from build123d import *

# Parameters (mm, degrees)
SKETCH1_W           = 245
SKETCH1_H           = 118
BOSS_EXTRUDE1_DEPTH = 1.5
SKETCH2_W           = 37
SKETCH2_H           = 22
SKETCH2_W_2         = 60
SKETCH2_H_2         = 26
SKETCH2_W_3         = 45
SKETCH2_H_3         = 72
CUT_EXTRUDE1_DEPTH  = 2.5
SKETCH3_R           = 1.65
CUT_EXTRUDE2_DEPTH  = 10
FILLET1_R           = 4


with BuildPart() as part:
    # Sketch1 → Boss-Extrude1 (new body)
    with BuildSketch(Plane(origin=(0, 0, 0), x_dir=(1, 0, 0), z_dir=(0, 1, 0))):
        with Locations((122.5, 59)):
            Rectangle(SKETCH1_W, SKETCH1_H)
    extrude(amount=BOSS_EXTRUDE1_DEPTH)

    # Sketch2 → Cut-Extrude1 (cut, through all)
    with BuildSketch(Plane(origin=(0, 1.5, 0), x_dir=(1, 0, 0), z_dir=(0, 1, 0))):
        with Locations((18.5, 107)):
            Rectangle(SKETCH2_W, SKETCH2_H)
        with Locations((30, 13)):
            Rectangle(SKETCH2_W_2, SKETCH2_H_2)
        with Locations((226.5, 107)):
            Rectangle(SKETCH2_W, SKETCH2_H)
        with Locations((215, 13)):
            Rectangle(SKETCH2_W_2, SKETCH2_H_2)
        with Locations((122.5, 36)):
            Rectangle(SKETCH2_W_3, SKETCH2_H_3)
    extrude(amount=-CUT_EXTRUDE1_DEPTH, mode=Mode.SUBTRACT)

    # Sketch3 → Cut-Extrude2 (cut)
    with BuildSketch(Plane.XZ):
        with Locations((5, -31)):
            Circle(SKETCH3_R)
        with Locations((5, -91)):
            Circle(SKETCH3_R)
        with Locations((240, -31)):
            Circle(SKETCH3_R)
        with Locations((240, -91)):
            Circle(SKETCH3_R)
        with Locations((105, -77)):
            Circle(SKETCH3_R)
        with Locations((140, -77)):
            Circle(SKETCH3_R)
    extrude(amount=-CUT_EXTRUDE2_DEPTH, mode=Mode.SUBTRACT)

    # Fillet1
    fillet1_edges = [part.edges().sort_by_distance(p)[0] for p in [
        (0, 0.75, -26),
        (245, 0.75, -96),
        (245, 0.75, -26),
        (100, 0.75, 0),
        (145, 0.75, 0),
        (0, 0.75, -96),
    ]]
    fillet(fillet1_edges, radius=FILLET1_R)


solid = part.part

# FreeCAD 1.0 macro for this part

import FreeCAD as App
import Part
import Sketcher


def edges_at(feature, points):
    """Names of the edges that pass closest to the given points."""
    edges = feature.Shape.Edges
    near = lambda p: min(range(len(edges)), key=lambda i: edges[i].distToShape(Part.Vertex(*p))[0])
    return sorted({f"Edge{near(p) + 1}" for p in points})

doc = App.newDocument("Part")
params = doc.addObject("Spreadsheet::Sheet", "Params")
for row, (alias, value) in enumerate([
    ("sketch1_width", "245 mm"),
    ("sketch1_height", "118 mm"),
    ("pad1_length", "1.5 mm"),
    ("sketch2_width", "37 mm"),
    ("sketch2_width2", "60 mm"),
    ("sketch2_width3", "45 mm"),
    ("sketch2_height", "22 mm"),
    ("sketch2_height2", "26 mm"),
    ("sketch3_diameter", "3.3 mm"),
    ("pocket2_length", "10 mm"),
    ("fillet_radius", "4 mm"),
], start=1):
    params.set(f"A{row}", alias)
    params.set(f"B{row}", "=" + value)
    params.setAlias(f"B{row}", alias)

body = doc.addObject("PartDesign::Body", "Body")

# Sketch on XZ plane
sketch1 = body.newObject("Sketcher::SketchObject", "Sketch")
sketch1.AttachmentSupport = (doc.getObject("XZ_Plane"), [""])
sketch1.MapMode = "FlatFace"
sketch1.addGeometry([
    Part.LineSegment(App.Vector(0, -118, 0), App.Vector(0, 0, 0)),
    Part.LineSegment(App.Vector(0, 0, 0), App.Vector(245, 0, 0)),
    Part.LineSegment(App.Vector(245, 0, 0), App.Vector(245, -118, 0)),
    Part.LineSegment(App.Vector(245, -118, 0), App.Vector(0, -118, 0)),
], False)
sketch1.addConstraint([
    Sketcher.Constraint("Coincident", 0, 2, 1, 1),
    Sketcher.Constraint("Coincident", 1, 2, 2, 1),
    Sketcher.Constraint("Coincident", 2, 2, 3, 1),
    Sketcher.Constraint("Coincident", 3, 2, 0, 1),
    Sketcher.Constraint("Vertical", 0),
    Sketcher.Constraint("Horizontal", 1),
    Sketcher.Constraint("Vertical", 2),
    Sketcher.Constraint("Horizontal", 3),
    Sketcher.Constraint("Coincident", 0, 2, -1, 1),
    Sketcher.Constraint("DistanceX", 1, 1, 1, 2, 245.0),
    Sketcher.Constraint("DistanceY", 0, 1, 0, 2, 118.0),
])
sketch1.setExpression("Constraints[9]", "Params.sketch1_width")
sketch1.setExpression("Constraints[10]", "Params.sketch1_height")
pad1 = body.newObject("PartDesign::Pad", "Pad")
pad1.Profile = sketch1
pad1.setExpression("Length", "Params.pad1_length")
pad1.Reversed = True

# Sketch on XZ plane
sketch2 = body.newObject("Sketcher::SketchObject", "Sketch001")
sketch2.AttachmentSupport = (doc.getObject("XZ_Plane"), [""])
sketch2.MapMode = "FlatFace"
sketch2.AttachmentOffset = App.Placement(App.Vector(0, 0, -1.5), App.Rotation())
sketch2.addGeometry([
    Part.LineSegment(App.Vector(0, -118, 0), App.Vector(0, -96, 0)),  # 0
    Part.LineSegment(App.Vector(0, -96, 0), App.Vector(37, -96, 0)),  # 1
    Part.LineSegment(App.Vector(37, -96, 0), App.Vector(37, -118, 0)),  # 2
    Part.LineSegment(App.Vector(37, -118, 0), App.Vector(0, -118, 0)),  # 3
    Part.LineSegment(App.Vector(0, -26, 0), App.Vector(0, 0, 0)),  # 4
    Part.LineSegment(App.Vector(0, 0, 0), App.Vector(60, 0, 0)),  # 5
    Part.LineSegment(App.Vector(60, 0, 0), App.Vector(60, -26, 0)),  # 6
    Part.LineSegment(App.Vector(60, -26, 0), App.Vector(0, -26, 0)),  # 7
    Part.LineSegment(App.Vector(208, -118, 0), App.Vector(208, -96, 0)),  # 8
    Part.LineSegment(App.Vector(208, -96, 0), App.Vector(245, -96, 0)),  # 9
    Part.LineSegment(App.Vector(245, -96, 0), App.Vector(245, -118, 0)),  # 10
    Part.LineSegment(App.Vector(245, -118, 0), App.Vector(208, -118, 0)),  # 11
    Part.LineSegment(App.Vector(185, -26, 0), App.Vector(185, 0, 0)),  # 12
    Part.LineSegment(App.Vector(185, 0, 0), App.Vector(245, 0, 0)),  # 13
    Part.LineSegment(App.Vector(245, 0, 0), App.Vector(245, -26, 0)),  # 14
    Part.LineSegment(App.Vector(245, -26, 0), App.Vector(185, -26, 0)),  # 15
    Part.LineSegment(App.Vector(100, -72, 0), App.Vector(100, 0, 0)),  # 16
    Part.LineSegment(App.Vector(100, 0, 0), App.Vector(145, 0, 0)),  # 17
    Part.LineSegment(App.Vector(145, 0, 0), App.Vector(145, -72, 0)),  # 18
    Part.LineSegment(App.Vector(145, -72, 0), App.Vector(100, -72, 0)),  # 19
], False)
sketch2.addConstraint([
    Sketcher.Constraint("Coincident", 0, 2, 1, 1),
    Sketcher.Constraint("Coincident", 1, 2, 2, 1),
    Sketcher.Constraint("Coincident", 2, 2, 3, 1),
    Sketcher.Constraint("Coincident", 3, 2, 0, 1),
    Sketcher.Constraint("Coincident", 4, 2, 5, 1),
    Sketcher.Constraint("Coincident", 5, 2, 6, 1),
    Sketcher.Constraint("Coincident", 6, 2, 7, 1),
    Sketcher.Constraint("Coincident", 7, 2, 4, 1),
    Sketcher.Constraint("Coincident", 8, 2, 9, 1),
    Sketcher.Constraint("Coincident", 9, 2, 10, 1),
    Sketcher.Constraint("Coincident", 10, 2, 11, 1),
    Sketcher.Constraint("Coincident", 11, 2, 8, 1),
    Sketcher.Constraint("Coincident", 12, 2, 13, 1),
    Sketcher.Constraint("Coincident", 13, 2, 14, 1),
    Sketcher.Constraint("Coincident", 14, 2, 15, 1),
    Sketcher.Constraint("Coincident", 15, 2, 12, 1),
    Sketcher.Constraint("Coincident", 16, 2, 17, 1),
    Sketcher.Constraint("Coincident", 17, 2, 18, 1),
    Sketcher.Constraint("Coincident", 18, 2, 19, 1),
    Sketcher.Constraint("Coincident", 19, 2, 16, 1),
    Sketcher.Constraint("Vertical", 0),
    Sketcher.Constraint("Horizontal", 1),
    Sketcher.Constraint("Vertical", 2),
    Sketcher.Constraint("Horizontal", 3),
    Sketcher.Constraint("Vertical", 4),
    Sketcher.Constraint("Horizontal", 5),
    Sketcher.Constraint("Vertical", 6),
    Sketcher.Constraint("Horizontal", 7),
    Sketcher.Constraint("Vertical", 8),
    Sketcher.Constraint("Horizontal", 9),
    Sketcher.Constraint("Vertical", 10),
    Sketcher.Constraint("Horizontal", 11),
    Sketcher.Constraint("Vertical", 12),
    Sketcher.Constraint("Horizontal", 13),
    Sketcher.Constraint("Vertical", 14),
    Sketcher.Constraint("Horizontal", 15),
    Sketcher.Constraint("Vertical", 16),
    Sketcher.Constraint("Horizontal", 17),
    Sketcher.Constraint("Vertical", 18),
    Sketcher.Constraint("Horizontal", 19),
    Sketcher.Constraint("Coincident", 4, 2, -1, 1),
    Sketcher.Constraint("PointOnObject", 0, 2, -2),
    Sketcher.Constraint("PointOnObject", 12, 2, -1),
    Sketcher.Constraint("PointOnObject", 16, 2, -1),
    Sketcher.Constraint("Horizontal", 1, 2, 8, 2),
    Sketcher.Constraint("Horizontal", 3, 2, 10, 2),
    Sketcher.Constraint("Horizontal", 7, 2, 14, 2),
    Sketcher.Constraint("Vertical", 10, 2, 13, 2),
    Sketcher.Constraint("Equal", 3, 9),
    Sketcher.Constraint("Equal", 7, 13),
    Sketcher.Constraint("DistanceX", 1, 1, 1, 2, 37.0),
    Sketcher.Constraint("DistanceX", 5, 1, 5, 2, 60.0),
    Sketcher.Constraint("DistanceX", 17, 1, 17, 2, 45.0),
    Sketcher.Constraint("DistanceY", 0, 1, 0, 2, 22.0),
    Sketcher.Constraint("DistanceY", 4, 1, 4, 2, 26.0),
    Sketcher.Constraint("DistanceY", 16, 1, 16, 2, 72.0),
    Sketcher.Constraint("DistanceY", 0, 2, -1, 1, 96.0),
    Sketcher.Constraint("DistanceX", -1, 1, 8, 2, 208.0),
    Sketcher.Constraint("DistanceX", -1, 1, 16, 2, 100.0),
])
sketch2.setExpression("Constraints[50]", "Params.sketch2_width")
sketch2.setExpression("Constraints[51]", "Params.sketch2_width2")
sketch2.setExpression("Constraints[52]", "Params.sketch2_width3")
sketch2.setExpression("Constraints[53]", "Params.sketch2_height")
sketch2.setExpression("Constraints[54]", "Params.sketch2_height2")
pocket1 = body.newObject("PartDesign::Pocket", "Pocket")
pocket1.Profile = sketch2
pocket1.Type = "ThroughAll"
pocket1.Reversed = True

# Sketch on XZ plane
sketch3 = body.newObject("Sketcher::SketchObject", "Sketch002")
sketch3.AttachmentSupport = (doc.getObject("XZ_Plane"), [""])
sketch3.MapMode = "FlatFace"
sketch3.addGeometry([
    Part.Circle(App.Vector(5, -31, 0), App.Vector(0, 0, 1), 1.65),  # 0
    Part.Circle(App.Vector(5, -91, 0), App.Vector(0, 0, 1), 1.65),  # 1
    Part.Circle(App.Vector(240, -31, 0), App.Vector(0, 0, 1), 1.65),  # 2
    Part.Circle(App.Vector(240, -91, 0), App.Vector(0, 0, 1), 1.65),  # 3
    Part.Circle(App.Vector(105, -77, 0), App.Vector(0, 0, 1), 1.65),  # 4
    Part.Circle(App.Vector(140, -77, 0), App.Vector(0, 0, 1), 1.65),  # 5
], False)
sketch3.addConstraint([
    Sketcher.Constraint("Equal", 0, 1),
    Sketcher.Constraint("Equal", 1, 2),
    Sketcher.Constraint("Equal", 2, 3),
    Sketcher.Constraint("Equal", 3, 4),
    Sketcher.Constraint("Equal", 4, 5),
    Sketcher.Constraint("Horizontal", 0, 3, 2, 3),
    Sketcher.Constraint("Horizontal", 1, 3, 3, 3),
    Sketcher.Constraint("Horizontal", 4, 3, 5, 3),
    Sketcher.Constraint("Vertical", 0, 3, 1, 3),
    Sketcher.Constraint("Vertical", 2, 3, 3, 3),
    Sketcher.Constraint("Diameter", 0, 3.3),
    Sketcher.Constraint("DistanceX", -1, 1, 0, 3, 5.0),
    Sketcher.Constraint("DistanceY", 0, 3, -1, 1, 31.0),
    Sketcher.Constraint("DistanceY", 1, 3, -1, 1, 91.0),
    Sketcher.Constraint("DistanceX", -1, 1, 2, 3, 240.0),
    Sketcher.Constraint("DistanceX", -1, 1, 4, 3, 105.0),
    Sketcher.Constraint("DistanceY", 4, 3, -1, 1, 77.0),
    Sketcher.Constraint("DistanceX", -1, 1, 5, 3, 140.0),
])
sketch3.setExpression("Constraints[10]", "Params.sketch3_diameter")
pocket2 = body.newObject("PartDesign::Pocket", "Pocket001")
pocket2.Profile = sketch3
pocket2.setExpression("Length", "Params.pocket2_length")
doc.recompute()

fillet = body.newObject("PartDesign::Fillet", "Fillet")
fillet.Base = (pocket2, edges_at(pocket2, [
    (0, 0.75, -26),
    (245, 0.75, -96),
    (245, 0.75, -26),
    (100, 0.75, 0),
    (145, 0.75, 0),
    (0, 0.75, -96),
]))
fillet.setExpression("Radius", "Params.fillet_radius")

doc.recompute()
